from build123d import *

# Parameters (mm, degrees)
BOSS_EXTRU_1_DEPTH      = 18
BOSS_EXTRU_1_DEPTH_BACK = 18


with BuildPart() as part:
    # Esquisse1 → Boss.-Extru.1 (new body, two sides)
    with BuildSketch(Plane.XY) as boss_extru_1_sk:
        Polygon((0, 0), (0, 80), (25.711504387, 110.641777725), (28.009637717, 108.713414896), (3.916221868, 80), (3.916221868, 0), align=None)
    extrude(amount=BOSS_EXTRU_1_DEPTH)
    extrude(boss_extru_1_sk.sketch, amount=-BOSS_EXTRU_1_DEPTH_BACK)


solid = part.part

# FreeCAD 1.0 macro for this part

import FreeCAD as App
import Part
import Sketcher
from FreeCAD import Vector
Q = App.Units.Quantity


def add_polygon(sketch, points):
    """Adds a closed chain of lines whose ends are joined by coincident constraints."""
    first, n = sketch.GeometryCount, len(points)
    for a, b in zip(points, points[1:] + points[:1]):
        sketch.addGeometry(Part.LineSegment(App.Vector(*a, 0), App.Vector(*b, 0)), False)
    for i in range(n):
        sketch.addConstraint(Sketcher.Constraint("Coincident", first + i, 2, first + (i + 1) % n, 1))

doc = App.newDocument("Part")
body = doc.addObject("PartDesign::Body", "Body")

# Sketch on XY plane
sketch1 = doc.addObject("Sketcher::SketchObject", "Sketch")
body.addObject(sketch1)
sketch1.AttachmentSupport = (doc.XY_Plane, [""])
sketch1.MapMode = "FlatFace"
add_polygon(sketch1, [(0, 80), (0, 0), (3.9, 0), (3.9, 80), (28, 108.7), (25.7, 110.6)])  # lines 0-5
sketch1.addConstraint([
    Sketcher.Constraint("Vertical", 0),
    Sketcher.Constraint("Horizontal", 1),
    Sketcher.Constraint("Vertical", 2),
    Sketcher.Constraint("Coincident", 0, 2, -1, 1),
    Sketcher.Constraint("Perpendicular", 3, 4),
    Sketcher.Constraint("Perpendicular", 4, 5),
    Sketcher.Constraint("Horizontal", 2, 2, 5, 2),
    Sketcher.Constraint("DistanceY", 0, 2, 0, 1, Q("80 mm")),
    Sketcher.Constraint("Angle", 3, Q("50 deg")),
    Sketcher.Constraint("Distance", 4, Q("3 mm")),
    Sketcher.Constraint("Distance", 5, Q("40 mm")),
])
pad1 = doc.addObject("PartDesign::Pad", "Pad")
body.addObject(pad1)
pad1.Profile = sketch1
pad1.Type = "TwoLengths"
pad1.Length = 18
pad1.Length2 = 18

doc.recompute()
